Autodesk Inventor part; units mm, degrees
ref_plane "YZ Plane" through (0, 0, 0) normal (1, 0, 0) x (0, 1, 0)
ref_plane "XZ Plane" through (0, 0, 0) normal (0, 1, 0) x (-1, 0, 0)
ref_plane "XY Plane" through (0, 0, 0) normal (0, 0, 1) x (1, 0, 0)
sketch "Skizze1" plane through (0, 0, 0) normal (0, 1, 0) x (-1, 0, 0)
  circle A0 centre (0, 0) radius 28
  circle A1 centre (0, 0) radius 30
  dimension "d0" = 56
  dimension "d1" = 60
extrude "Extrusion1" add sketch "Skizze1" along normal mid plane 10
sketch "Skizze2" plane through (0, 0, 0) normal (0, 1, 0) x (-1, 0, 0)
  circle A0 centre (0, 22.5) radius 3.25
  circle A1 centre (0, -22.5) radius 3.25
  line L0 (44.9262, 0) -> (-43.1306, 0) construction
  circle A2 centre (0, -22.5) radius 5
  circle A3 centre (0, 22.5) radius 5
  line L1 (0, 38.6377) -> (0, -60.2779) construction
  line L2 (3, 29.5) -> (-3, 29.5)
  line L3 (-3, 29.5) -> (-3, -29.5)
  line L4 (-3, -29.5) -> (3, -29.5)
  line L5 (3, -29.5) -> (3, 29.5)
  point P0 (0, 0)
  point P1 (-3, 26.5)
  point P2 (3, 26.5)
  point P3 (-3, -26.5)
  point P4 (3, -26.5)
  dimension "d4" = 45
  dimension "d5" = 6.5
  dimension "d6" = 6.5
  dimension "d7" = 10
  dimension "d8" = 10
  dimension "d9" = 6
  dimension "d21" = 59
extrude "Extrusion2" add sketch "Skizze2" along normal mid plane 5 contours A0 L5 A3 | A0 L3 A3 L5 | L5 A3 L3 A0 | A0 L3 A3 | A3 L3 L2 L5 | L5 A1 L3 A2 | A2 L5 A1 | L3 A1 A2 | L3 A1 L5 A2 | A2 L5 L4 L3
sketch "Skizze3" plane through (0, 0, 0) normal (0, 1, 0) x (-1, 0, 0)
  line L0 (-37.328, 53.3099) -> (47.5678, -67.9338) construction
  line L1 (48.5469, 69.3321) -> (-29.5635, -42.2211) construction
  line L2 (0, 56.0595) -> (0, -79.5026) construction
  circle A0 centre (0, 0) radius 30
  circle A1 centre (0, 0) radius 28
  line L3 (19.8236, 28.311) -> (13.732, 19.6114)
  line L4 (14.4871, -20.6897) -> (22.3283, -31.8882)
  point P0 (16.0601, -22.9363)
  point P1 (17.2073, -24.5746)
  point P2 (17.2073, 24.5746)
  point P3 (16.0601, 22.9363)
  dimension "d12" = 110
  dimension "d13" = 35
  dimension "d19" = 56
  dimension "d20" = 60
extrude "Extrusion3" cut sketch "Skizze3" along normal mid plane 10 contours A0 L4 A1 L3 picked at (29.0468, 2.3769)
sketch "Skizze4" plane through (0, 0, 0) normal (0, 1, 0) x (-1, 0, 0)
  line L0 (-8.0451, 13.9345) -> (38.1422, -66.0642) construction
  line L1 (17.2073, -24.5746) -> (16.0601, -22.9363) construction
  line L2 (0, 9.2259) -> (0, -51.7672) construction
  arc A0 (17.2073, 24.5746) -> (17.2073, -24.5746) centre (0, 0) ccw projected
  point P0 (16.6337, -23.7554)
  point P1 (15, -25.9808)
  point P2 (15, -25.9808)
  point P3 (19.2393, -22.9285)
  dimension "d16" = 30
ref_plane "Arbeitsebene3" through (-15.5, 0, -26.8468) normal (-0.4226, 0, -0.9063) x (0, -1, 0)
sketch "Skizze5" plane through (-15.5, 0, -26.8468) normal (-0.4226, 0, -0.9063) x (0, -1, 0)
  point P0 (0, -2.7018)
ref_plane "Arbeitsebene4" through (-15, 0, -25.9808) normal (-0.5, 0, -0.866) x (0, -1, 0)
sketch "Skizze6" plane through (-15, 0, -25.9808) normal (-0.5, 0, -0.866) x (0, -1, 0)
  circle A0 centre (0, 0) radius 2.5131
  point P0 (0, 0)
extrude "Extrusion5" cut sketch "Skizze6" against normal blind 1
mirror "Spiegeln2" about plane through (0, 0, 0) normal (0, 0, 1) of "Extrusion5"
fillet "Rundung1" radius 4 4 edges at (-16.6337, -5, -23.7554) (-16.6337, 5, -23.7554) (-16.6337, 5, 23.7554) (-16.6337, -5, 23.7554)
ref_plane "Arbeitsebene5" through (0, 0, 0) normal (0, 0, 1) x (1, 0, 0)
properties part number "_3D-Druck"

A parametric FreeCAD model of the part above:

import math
import FreeCAD as App
import Part
import Sketcher
Q = App.Units.Quantity


def edges_at(feature, points):
    """Names of the edges that pass closest to the given points."""
    edges = feature.Shape.Edges
    near = lambda p: min(range(len(edges)), key=lambda i: edges[i].distToShape(Part.Vertex(*p))[0])
    return sorted({f"Edge{near(p) + 1}" for p in points})

doc = App.newDocument("Part")
params = doc.addObject("Spreadsheet::Sheet", "Params")
for row, (alias, value) in enumerate([
    ("sketch1_diameter", "60 mm"),
    ("sketch1_diameter2", "56 mm"),
    ("pad1_length", "10 mm"),
    ("sketch2_radius", "5 mm"),
    ("sketch2_diameter", "6.5 mm"),
    ("sketch2_width", "6 mm"),
    ("sketch2_height", "3 mm"),
    ("pad2_length", "5 mm"),
    ("sketch3_radius", "30 mm"),
    ("sketch3_radius2", "28 mm"),
    ("pocket1_length", "10 mm"),
    ("pocket2_length", "1 mm"),
    ("fillet_radius", "4 mm"),
], start=1):
    params.set(f"A{row}", alias)
    params.set(f"B{row}", "=" + value)
    params.setAlias(f"B{row}", alias)

body = doc.addObject("PartDesign::Body", "Body")

# Sketch on XZ plane
sketch1 = body.newObject("Sketcher::SketchObject", "Sketch")
sketch1.AttachmentSupport = (doc.getObject("XZ_Plane"), [""])
sketch1.MapMode = "FlatFace"
sketch1.addGeometry(Part.Circle(App.Vector(0, 0, 0), App.Vector(0, 0, 1), 30), False)
sketch1.addGeometry(Part.Circle(App.Vector(0, 0, 0), App.Vector(0, 0, 1), 28), False)
sketch1.addConstraint(Sketcher.Constraint("Coincident", 0, 3, -1, 1))
sketch1.addConstraint(Sketcher.Constraint("Coincident", 1, 3, -1, 1))
sketch1.addConstraint(Sketcher.Constraint("Diameter", 0, 60.0))
sketch1.addConstraint(Sketcher.Constraint("Diameter", 1, 56.0))
sketch1.setExpression("Constraints[2]", "Params.sketch1_diameter")
sketch1.setExpression("Constraints[3]", "Params.sketch1_diameter2")
pad1 = body.newObject("PartDesign::Pad", "Pad")
pad1.Profile = sketch1
pad1.setExpression("Length", "Params.pad1_length")
pad1.Midplane = True

# Sketch on XZ plane
sketch2 = body.newObject("Sketcher::SketchObject", "Sketch001")
sketch2.AttachmentSupport = (doc.getObject("XZ_Plane"), [""])
sketch2.MapMode = "FlatFace"
sketch2.addGeometry(Part.LineSegment(App.Vector(-3, 26.5, 0), App.Vector(-3, 29.5, 0)), False)
sketch2.addGeometry(Part.LineSegment(App.Vector(-3, 29.5, 0), App.Vector(3, 29.5, 0)), False)
sketch2.addGeometry(Part.LineSegment(App.Vector(3, 29.5, 0), App.Vector(3, 26.5, 0)), False)
sketch2.addGeometry(Part.ArcOfCircle(Part.Circle(App.Vector(0, 22.5, 0), App.Vector(0, 0, 1), 5), math.radians(127), math.radians(413)), False)
sketch2.addGeometry(Part.Circle(App.Vector(0, 22.5, 0), App.Vector(0, 0, 1), 3.2), False)
sketch2.addGeometry(Part.LineSegment(App.Vector(3, -26.5, 0), App.Vector(3, -29.5, 0)), False)
sketch2.addGeometry(Part.LineSegment(App.Vector(3, -29.5, 0), App.Vector(-3, -29.5, 0)), False)
sketch2.addGeometry(Part.LineSegment(App.Vector(-3, -29.5, 0), App.Vector(-3, -26.5, 0)), False)
sketch2.addGeometry(Part.ArcOfCircle(Part.Circle(App.Vector(0, -22.5, 0), App.Vector(0, 0, 1), 5), math.radians(-53), math.radians(233)), False)
sketch2.addGeometry(Part.Circle(App.Vector(0, -22.5, 0), App.Vector(0, 0, 1), 3.2), False)
sketch2.addConstraint(Sketcher.Constraint("Coincident", 0, 2, 1, 1))
sketch2.addConstraint(Sketcher.Constraint("Coincident", 1, 2, 2, 1))
sketch2.addConstraint(Sketcher.Constraint("Coincident", 2, 2, 3, 2))
sketch2.addConstraint(Sketcher.Constraint("Coincident", 3, 1, 0, 1))
sketch2.addConstraint(Sketcher.Constraint("Coincident", 5, 2, 6, 1))
sketch2.addConstraint(Sketcher.Constraint("Coincident", 6, 2, 7, 1))
sketch2.addConstraint(Sketcher.Constraint("Coincident", 7, 2, 8, 2))
sketch2.addConstraint(Sketcher.Constraint("Coincident", 8, 1, 5, 1))
sketch2.addConstraint(Sketcher.Constraint("Vertical", 0))
sketch2.addConstraint(Sketcher.Constraint("Horizontal", 1))
sketch2.addConstraint(Sketcher.Constraint("Vertical", 2))
sketch2.addConstraint(Sketcher.Constraint("Vertical", 5))
sketch2.addConstraint(Sketcher.Constraint("Horizontal", 6))
sketch2.addConstraint(Sketcher.Constraint("Vertical", 7))
sketch2.addConstraint(Sketcher.Constraint("Coincident", 4, 3, 3, 3))
sketch2.addConstraint(Sketcher.Constraint("Coincident", 9, 3, 8, 3))
sketch2.addConstraint(Sketcher.Constraint("Equal", 3, 8))
sketch2.addConstraint(Sketcher.Constraint("Equal", 4, 9))
sketch2.addConstraint(Sketcher.Constraint("Symmetric", 3, 3, 8, 3, -1, 1))
sketch2.addConstraint(Sketcher.Constraint("Symmetric", 0, 2, 5, 2, -1, 1))
sketch2.addConstraint(Sketcher.Constraint("Symmetric", 2, 2, 3, 1, -2))
sketch2.addConstraint(Sketcher.Constraint("Horizontal", 7, 2, 8, 1))
sketch2.addConstraint(Sketcher.Constraint("Radius", 3, 5.0))
sketch2.addConstraint(Sketcher.Constraint("Diameter", 4, 6.5))
sketch2.addConstraint(Sketcher.Constraint("DistanceX", 1, 1, 1, 2, 6.0))
sketch2.addConstraint(Sketcher.Constraint("DistanceY", 8, 3, 3, 3, 45.0))
sketch2.addConstraint(Sketcher.Constraint("DistanceY", 0, 1, 0, 2, 3.0))
sketch2.setExpression("Constraints[22]", "Params.sketch2_radius")
sketch2.setExpression("Constraints[23]", "Params.sketch2_diameter")
sketch2.setExpression("Constraints[24]", "Params.sketch2_width")
sketch2.setExpression("Constraints[26]", "Params.sketch2_height")
pad2 = body.newObject("PartDesign::Pad", "Pad001")
pad2.Profile = sketch2
pad2.setExpression("Length", "Params.pad2_length")
pad2.Midplane = True

# Sketch on XZ plane
sketch3 = body.newObject("Sketcher::SketchObject", "Sketch002")
sketch3.AttachmentSupport = (doc.getObject("XZ_Plane"), [""])
sketch3.MapMode = "FlatFace"
sketch3.addGeometry(Part.ArcOfCircle(Part.Circle(App.Vector(0, 0, 0), App.Vector(0, 0, 1), 30), math.radians(125), math.radians(235)), False)
sketch3.addGeometry(Part.LineSegment(App.Vector(-17.2, 24.6, 0), App.Vector(-16.1, 22.9, 0)), False)
sketch3.addGeometry(Part.ArcOfCircle(Part.Circle(App.Vector(0, 0, 0), App.Vector(0, 0, 1), 28), math.radians(125), math.radians(235)), False)
sketch3.addGeometry(Part.LineSegment(App.Vector(-16.1, -22.9, 0), App.Vector(-17.2, -24.6, 0)), False)
sketch3.addConstraint(Sketcher.Constraint("Coincident", 0, 1, 1, 1))
sketch3.addConstraint(Sketcher.Constraint("Coincident", 1, 2, 2, 1))
sketch3.addConstraint(Sketcher.Constraint("Coincident", 2, 2, 3, 1))
sketch3.addConstraint(Sketcher.Constraint("Coincident", 3, 2, 0, 2))
sketch3.addConstraint(Sketcher.Constraint("Coincident", 0, 3, -1, 1))
sketch3.addConstraint(Sketcher.Constraint("Coincident", 2, 3, -1, 1))
sketch3.addConstraint(Sketcher.Constraint("Vertical", 1, 2, 2, 2))
sketch3.addConstraint(Sketcher.Constraint("Vertical", 0, 1, 3, 2))
sketch3.addConstraint(Sketcher.Constraint("Radius", 0, 30.0))
sketch3.addConstraint(Sketcher.Constraint("Radius", 2, 28.0))
sketch3.addConstraint(Sketcher.Constraint("Angle", 1, Q("-54.9997 deg")))
sketch3.addConstraint(Sketcher.Constraint("DistanceX", 0, 1, -1, 1, 17.2073))
sketch3.setExpression("Constraints[8]", "Params.sketch3_radius")
sketch3.setExpression("Constraints[9]", "Params.sketch3_radius2")
pocket1 = body.newObject("PartDesign::Pocket", "Pocket")
pocket1.Profile = sketch3
pocket1.setExpression("Length", "Params.pocket1_length")
pocket1.Midplane = True

# Sketch on an angled plane
sketch4 = body.newObject("Sketcher::SketchObject", "Sketch003")
sketch4.Placement = App.Placement(App.Vector(-15, 0, -25.9808), App.Rotation(App.Vector(0, -1, 0), App.Vector(-0.866025404, 0, 0.5), App.Vector(-0.5, 0, -0.866025404), "ZXY"))
sketch4.addGeometry(Part.Circle(App.Vector(0, 0, 0), App.Vector(0, 0, 1), 2.5), False)
sketch4.addConstraint(Sketcher.Constraint("Coincident", 0, 3, -1, 1))
sketch4.addConstraint(Sketcher.Constraint("Diameter", 0, 5.0262))
pocket2 = body.newObject("PartDesign::Pocket", "Pocket001")
pocket2.Profile = sketch4
pocket2.setExpression("Length", "Params.pocket2_length")
doc.recompute()

mirrored = body.newObject("PartDesign::Mirrored", "Mirrored")
mirrored.Originals = [pocket2]
mirrored.MirrorPlane = (doc.getObject("XY_Plane"), [""])
body.Tip = mirrored
doc.recompute()

fillet = body.newObject("PartDesign::Fillet", "Fillet")
fillet.Base = (mirrored, edges_at(mirrored, [
    (-16.634, -5, -23.755),
    (-16.634, 5, -23.755),
    (-16.634, 5, 23.755),
    (-16.634, -5, 23.755),
]))
fillet.setExpression("Radius", "Params.fillet_radius")

doc.recompute()
